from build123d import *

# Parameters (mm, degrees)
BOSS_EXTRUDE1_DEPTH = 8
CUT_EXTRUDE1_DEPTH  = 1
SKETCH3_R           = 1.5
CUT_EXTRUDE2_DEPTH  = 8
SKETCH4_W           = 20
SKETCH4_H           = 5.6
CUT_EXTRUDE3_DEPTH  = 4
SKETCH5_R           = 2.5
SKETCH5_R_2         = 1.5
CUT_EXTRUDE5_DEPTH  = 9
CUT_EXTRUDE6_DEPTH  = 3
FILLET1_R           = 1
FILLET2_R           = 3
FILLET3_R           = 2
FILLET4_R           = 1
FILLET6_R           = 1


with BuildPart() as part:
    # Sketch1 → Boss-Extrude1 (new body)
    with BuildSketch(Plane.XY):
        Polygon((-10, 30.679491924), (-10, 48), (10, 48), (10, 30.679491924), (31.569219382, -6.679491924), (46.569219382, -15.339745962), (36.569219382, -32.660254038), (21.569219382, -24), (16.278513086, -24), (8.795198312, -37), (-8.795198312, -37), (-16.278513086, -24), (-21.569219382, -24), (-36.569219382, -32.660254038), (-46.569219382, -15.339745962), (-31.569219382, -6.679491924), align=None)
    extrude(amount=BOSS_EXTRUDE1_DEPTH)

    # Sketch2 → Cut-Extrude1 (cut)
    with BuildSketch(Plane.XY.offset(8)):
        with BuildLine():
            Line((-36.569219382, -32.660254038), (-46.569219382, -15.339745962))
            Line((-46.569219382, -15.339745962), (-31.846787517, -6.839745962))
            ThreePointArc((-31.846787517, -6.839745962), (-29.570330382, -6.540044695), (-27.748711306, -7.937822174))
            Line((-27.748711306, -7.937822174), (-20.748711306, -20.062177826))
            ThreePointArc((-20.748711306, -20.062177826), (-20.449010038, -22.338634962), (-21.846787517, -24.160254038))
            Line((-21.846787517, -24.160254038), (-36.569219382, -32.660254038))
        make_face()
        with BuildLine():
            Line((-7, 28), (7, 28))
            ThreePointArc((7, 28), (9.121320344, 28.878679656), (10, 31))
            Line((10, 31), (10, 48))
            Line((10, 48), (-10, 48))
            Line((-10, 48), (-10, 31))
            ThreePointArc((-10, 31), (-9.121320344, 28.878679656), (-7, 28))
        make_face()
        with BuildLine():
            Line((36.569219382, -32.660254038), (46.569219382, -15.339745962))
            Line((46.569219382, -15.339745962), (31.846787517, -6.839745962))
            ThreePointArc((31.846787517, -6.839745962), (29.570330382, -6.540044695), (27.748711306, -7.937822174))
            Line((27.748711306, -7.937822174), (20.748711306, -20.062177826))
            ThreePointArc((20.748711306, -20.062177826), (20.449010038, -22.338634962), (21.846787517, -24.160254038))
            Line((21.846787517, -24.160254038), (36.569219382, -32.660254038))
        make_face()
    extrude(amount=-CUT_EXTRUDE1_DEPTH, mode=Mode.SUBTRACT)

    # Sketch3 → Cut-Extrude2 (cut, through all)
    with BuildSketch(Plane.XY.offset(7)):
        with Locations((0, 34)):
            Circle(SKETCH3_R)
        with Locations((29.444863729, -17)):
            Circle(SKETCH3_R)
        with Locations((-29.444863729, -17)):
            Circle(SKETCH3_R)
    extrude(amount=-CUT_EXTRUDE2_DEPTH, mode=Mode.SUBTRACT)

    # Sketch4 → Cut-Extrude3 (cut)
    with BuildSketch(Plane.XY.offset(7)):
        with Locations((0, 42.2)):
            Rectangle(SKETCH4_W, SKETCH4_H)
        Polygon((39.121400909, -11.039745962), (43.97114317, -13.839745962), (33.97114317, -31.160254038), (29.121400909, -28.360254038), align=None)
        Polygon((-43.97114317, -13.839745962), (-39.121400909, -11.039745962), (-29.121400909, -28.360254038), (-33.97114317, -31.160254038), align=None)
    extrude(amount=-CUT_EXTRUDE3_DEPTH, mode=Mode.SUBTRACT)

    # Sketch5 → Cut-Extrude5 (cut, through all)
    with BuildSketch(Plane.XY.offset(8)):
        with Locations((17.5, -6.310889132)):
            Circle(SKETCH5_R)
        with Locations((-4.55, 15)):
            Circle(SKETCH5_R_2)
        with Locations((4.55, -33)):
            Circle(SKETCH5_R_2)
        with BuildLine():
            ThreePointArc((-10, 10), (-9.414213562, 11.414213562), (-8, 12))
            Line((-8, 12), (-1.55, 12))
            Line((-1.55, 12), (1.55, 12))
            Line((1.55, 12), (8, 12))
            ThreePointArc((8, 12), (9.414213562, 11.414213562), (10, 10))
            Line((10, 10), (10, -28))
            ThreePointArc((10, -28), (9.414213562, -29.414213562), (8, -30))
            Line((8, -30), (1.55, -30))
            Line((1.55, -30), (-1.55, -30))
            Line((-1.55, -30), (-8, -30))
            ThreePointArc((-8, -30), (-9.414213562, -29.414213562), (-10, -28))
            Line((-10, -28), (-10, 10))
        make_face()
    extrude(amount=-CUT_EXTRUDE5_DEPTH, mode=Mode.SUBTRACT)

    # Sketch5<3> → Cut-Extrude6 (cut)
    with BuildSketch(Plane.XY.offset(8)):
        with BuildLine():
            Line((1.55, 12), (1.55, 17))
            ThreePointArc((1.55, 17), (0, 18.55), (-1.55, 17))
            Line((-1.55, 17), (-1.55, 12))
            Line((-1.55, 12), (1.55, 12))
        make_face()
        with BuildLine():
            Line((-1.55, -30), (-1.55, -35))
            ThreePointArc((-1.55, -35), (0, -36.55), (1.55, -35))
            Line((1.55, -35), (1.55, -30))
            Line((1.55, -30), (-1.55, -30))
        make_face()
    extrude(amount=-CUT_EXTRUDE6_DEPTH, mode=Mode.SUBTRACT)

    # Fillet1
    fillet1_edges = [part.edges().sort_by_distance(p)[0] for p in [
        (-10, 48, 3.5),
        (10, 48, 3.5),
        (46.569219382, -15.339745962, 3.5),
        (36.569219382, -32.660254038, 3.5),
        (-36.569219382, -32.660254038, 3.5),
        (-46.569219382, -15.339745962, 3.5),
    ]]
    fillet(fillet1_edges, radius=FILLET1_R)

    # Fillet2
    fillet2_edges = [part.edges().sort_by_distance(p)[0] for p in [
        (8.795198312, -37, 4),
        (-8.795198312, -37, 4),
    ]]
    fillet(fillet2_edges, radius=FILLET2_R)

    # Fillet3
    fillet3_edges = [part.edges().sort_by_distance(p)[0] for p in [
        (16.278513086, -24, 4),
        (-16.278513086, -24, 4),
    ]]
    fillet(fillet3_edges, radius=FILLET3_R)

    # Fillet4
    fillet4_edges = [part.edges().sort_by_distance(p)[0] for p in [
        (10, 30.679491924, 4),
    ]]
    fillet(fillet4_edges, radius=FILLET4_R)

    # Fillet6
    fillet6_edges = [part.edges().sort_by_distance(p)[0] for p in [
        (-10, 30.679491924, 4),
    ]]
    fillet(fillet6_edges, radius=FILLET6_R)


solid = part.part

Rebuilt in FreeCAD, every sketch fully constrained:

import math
import FreeCAD as App
import Part
import Sketcher
from FreeCAD import Vector
Q = App.Units.Quantity


def edges_at(feature, points):
    """Names of the edges that pass closest to the given points."""
    edges = feature.Shape.Edges
    near = lambda p: min(range(len(edges)), key=lambda i: edges[i].distToShape(Part.Vertex(*p))[0])
    return sorted({f"Edge{near(p) + 1}" for p in points})


def add_polygon(sketch, points):
    """Adds a closed chain of lines whose ends are joined by coincident constraints."""
    first, n = sketch.GeometryCount, len(points)
    for a, b in zip(points, points[1:] + points[:1]):
        sketch.addGeometry(Part.LineSegment(App.Vector(*a, 0), App.Vector(*b, 0)), False)
    for i in range(n):
        sketch.addConstraint(Sketcher.Constraint("Coincident", first + i, 2, first + (i + 1) % n, 1))

doc = App.newDocument("Part")
body = doc.addObject("PartDesign::Body", "Body")

sketch1 = doc.addObject("Sketcher::SketchObject", "Sketch")
body.addObject(sketch1)
sketch1.AttachmentSupport = (doc.XY_Plane, [""])
sketch1.MapMode = "FlatFace"
add_polygon(sketch1, [(-10, 48), (-10, 30.679492), (-31.569219, -6.679492), (-46.569219, -15.339746), (-36.569219, -32.660254), (-21.569219, -24), (-16.278513, -24), (-8.795198, -37), (8.795198, -37), (16.278513, -24), (21.569219, -24), (36.569219, -32.660254), (46.569219, -15.339746), (31.569219, -6.679492), (10, 30.679492), (10, 48)])
sketch1.addConstraint([
    Sketcher.Constraint("Vertical", 0),
    Sketcher.Constraint("Horizontal", 5),
    Sketcher.Constraint("Horizontal", 7),
    Sketcher.Constraint("Horizontal", 9),
    Sketcher.Constraint("Vertical", 14),
    Sketcher.Constraint("Horizontal", 15),
    Sketcher.Constraint("Symmetric", 5, 2, 8, 2, -2),
    Sketcher.Constraint("Symmetric", 3, 2, 10, 2, -2),
    Sketcher.Constraint("Symmetric", 2, 2, 11, 2, -2),
    Sketcher.Constraint("Symmetric", 1, 2, 12, 2, -2),
    Sketcher.Constraint("Symmetric", 0, 2, 13, 2, -2),
    Sketcher.Constraint("Perpendicular", 2, 3),
    Sketcher.Constraint("Perpendicular", 3, 4),
    Sketcher.Constraint("Perpendicular", 1, 10),
    Sketcher.Constraint("Perpendicular", 10, 11),
    Sketcher.Constraint("Equal", 2, 4),
    Sketcher.Constraint("Equal", 6, 8),
    Sketcher.Constraint("DistanceX", 15, 2, 15, 1, Q("20 mm")),
    Sketcher.Constraint("Angle", 1, Q("-120 deg")),
    Sketcher.Constraint("Distance", 3, Q("20 mm")),
    Sketcher.Constraint("Distance", 6, Q("15 mm")),
    Sketcher.Constraint("DistanceY", 4, 2, -1, 1, Q("24 mm")),
    Sketcher.Constraint("DistanceY", 6, 2, -1, 1, Q("37 mm")),
    Sketcher.Constraint("DistanceY", -1, 1, 14, 2, Q("48 mm")),
    Sketcher.Constraint("DistanceX", 2, 2, 1, 2, Q("15 mm")),
    Sketcher.Constraint("DistanceY", 0, 2, 0, 1, Q("17.320508 mm")),
    Sketcher.Constraint("DistanceX", 6, 2, -1, 1, Q("8.795198 mm")),
])
pad1 = doc.addObject("PartDesign::Pad", "Pad")
body.addObject(pad1)
pad1.Profile = sketch1
pad1.Length = 8

sketch2 = doc.addObject("Sketcher::SketchObject", "Sketch001")
body.addObject(sketch2)
sketch2.AttachmentSupport = (doc.XY_Plane, [""])
sketch2.MapMode = "FlatFace"
sketch2.AttachmentOffset = App.Placement(Vector(0, 0, 8), App.Rotation())
sketch2.addGeometry([
    Part.LineSegment(Vector(-46.569219, -15.339746, 0), Vector(-36.569219, -32.660254, 0)),
    Part.LineSegment(Vector(-36.569219, -32.660254, 0), Vector(-21.846788, -24.160254, 0)),
    Part.ArcOfCircle(Part.Circle(Vector(-23.346788, -21.562178, 0), Vector(0, 0, 1), 3), math.radians(-60), math.radians(30)),
    Part.LineSegment(Vector(-20.748711, -20.062178, 0), Vector(-27.748711, -7.937822, 0)),
    Part.ArcOfCircle(Part.Circle(Vector(-30.346788, -9.437822, 0), Vector(0, 0, 1), 3), math.radians(30), math.radians(120)),
    Part.LineSegment(Vector(-31.846788, -6.839746, 0), Vector(-46.569219, -15.339746, 0)),
    Part.LineSegment(Vector(-7, 28, 0), Vector(7, 28, 0)),
    Part.ArcOfCircle(Part.Circle(Vector(7, 31, 0), Vector(0, 0, 1), 3), math.radians(-90), math.radians(0)),
    Part.LineSegment(Vector(10, 31, 0), Vector(10, 48, 0)),
    Part.LineSegment(Vector(10, 48, 0), Vector(-10, 48, 0)),
    Part.LineSegment(Vector(-10, 48, 0), Vector(-10, 31, 0)),
    Part.ArcOfCircle(Part.Circle(Vector(-7, 31, 0), Vector(0, 0, 1), 3), math.radians(180), math.radians(270)),
    Part.LineSegment(Vector(36.569219, -32.660254, 0), Vector(46.569219, -15.339746, 0)),
    Part.LineSegment(Vector(46.569219, -15.339746, 0), Vector(31.846788, -6.839746, 0)),
    Part.ArcOfCircle(Part.Circle(Vector(30.346788, -9.437822, 0), Vector(0, 0, 1), 3), math.radians(60), math.radians(150)),
    Part.LineSegment(Vector(27.748711, -7.937822, 0), Vector(20.748711, -20.062178, 0)),
    Part.ArcOfCircle(Part.Circle(Vector(23.346788, -21.562178, 0), Vector(0, 0, 1), 3), math.radians(150), math.radians(240)),
    Part.LineSegment(Vector(21.846788, -24.160254, 0), Vector(36.569219, -32.660254, 0)),
], False)
sketch2.addConstraint([
    Sketcher.Constraint("Coincident", 0, 2, 1, 1),
    Sketcher.Constraint("Tangent", 1, 2, 2, 1),
    Sketcher.Constraint("Tangent", 2, 2, 3, 1),
    Sketcher.Constraint("Tangent", 3, 2, 4, 1),
    Sketcher.Constraint("Tangent", 4, 2, 5, 1),
    Sketcher.Constraint("Coincident", 5, 2, 0, 1),
    Sketcher.Constraint("Tangent", 6, 2, 7, 1),
    Sketcher.Constraint("Tangent", 7, 2, 8, 1),
    Sketcher.Constraint("Coincident", 8, 2, 9, 1),
    Sketcher.Constraint("Coincident", 9, 2, 10, 1),
    Sketcher.Constraint("Tangent", 10, 2, 11, 1),
    Sketcher.Constraint("Tangent", 11, 2, 6, 1),
    Sketcher.Constraint("Coincident", 12, 2, 13, 1),
    Sketcher.Constraint("Tangent", 13, 2, 14, 1),
    Sketcher.Constraint("Tangent", 14, 2, 15, 1),
    Sketcher.Constraint("Tangent", 15, 2, 16, 1),
    Sketcher.Constraint("Tangent", 16, 2, 17, 1),
    Sketcher.Constraint("Coincident", 17, 2, 12, 1),
    Sketcher.Constraint("Horizontal", 6),
    Sketcher.Constraint("Vertical", 8),
    Sketcher.Constraint("Horizontal", 9),
    Sketcher.Constraint("Vertical", 10),
    Sketcher.Constraint("Equal", 2, 4),
    Sketcher.Constraint("Equal", 4, 7),
    Sketcher.Constraint("Equal", 7, 11),
    Sketcher.Constraint("Equal", 11, 14),
    Sketcher.Constraint("Equal", 14, 16),
    Sketcher.Constraint("Symmetric", 4, 3, 14, 3, -2),
    Sketcher.Constraint("Symmetric", 2, 3, 16, 3, -2),
    Sketcher.Constraint("Symmetric", 5, 2, 12, 2, -2),
    Sketcher.Constraint("Symmetric", 0, 2, 17, 2, -2),
    Sketcher.Constraint("Perpendicular", 0, 1),
    Sketcher.Constraint("Perpendicular", 1, 3),
    Sketcher.Constraint("Perpendicular", 3, 5),
    Sketcher.Constraint("Radius", 2, Q("3 mm")),
    Sketcher.Constraint("DistanceX", 6, 1, 6, 2, Q("14 mm")),
    Sketcher.Constraint("DistanceY", 8, 1, 8, 2, Q("17 mm")),
    Sketcher.Constraint("Angle", 0, Q("-60 deg")),
    Sketcher.Constraint("Distance", 0, Q("20 mm")),
    Sketcher.Constraint("Distance", 1, Q("17 mm")),
    Sketcher.Constraint("DistanceX", -1, 1, 7, 3, Q("7 mm")),
    Sketcher.Constraint("DistanceY", -1, 1, 7, 3, Q("31 mm")),
    Sketcher.Constraint("DistanceX", 2, 2, 16, 3, Q("44.095499 mm")),
    Sketcher.Constraint("DistanceY", 2, 3, -1, 1, Q("21.562178 mm")),
])
pocket1 = doc.addObject("PartDesign::Pocket", "Pocket")
body.addObject(pocket1)
pocket1.Profile = sketch2
pocket1.Length = 1

sketch3 = doc.addObject("Sketcher::SketchObject", "Sketch002")
body.addObject(sketch3)
sketch3.AttachmentSupport = (doc.XY_Plane, [""])
sketch3.MapMode = "FlatFace"
sketch3.AttachmentOffset = App.Placement(Vector(0, 0, 7), App.Rotation())
sketch3.addGeometry([
    Part.Circle(Vector(0, 34, 0), Vector(0, 0, 1), 1.5),
    Part.Circle(Vector(29.444864, -17, 0), Vector(0, 0, 1), 1.5),
    Part.Circle(Vector(-29.444864, -17, 0), Vector(0, 0, 1), 1.5),
], False)
sketch3.addConstraint([
    Sketcher.Constraint("Equal", 0, 1),
    Sketcher.Constraint("Equal", 1, 2),
    Sketcher.Constraint("Symmetric", 1, 3, 2, 3, -2),
    Sketcher.Constraint("PointOnObject", 0, 3, -2),
    Sketcher.Constraint("Diameter", 0, Q("3 mm")),
    Sketcher.Constraint("DistanceY", -1, 1, 0, 3, Q("34 mm")),
    Sketcher.Constraint("DistanceY", 1, 3, -1, 1, Q("17 mm")),
    Sketcher.Constraint("DistanceX", -1, 1, 1, 3, Q("29.444864 mm")),
])
pocket2 = doc.addObject("PartDesign::Pocket", "Pocket001")
body.addObject(pocket2)
pocket2.Profile = sketch3
pocket2.Type = "ThroughAll"

sketch4 = doc.addObject("Sketcher::SketchObject", "Sketch003")
body.addObject(sketch4)
sketch4.AttachmentSupport = (doc.XY_Plane, [""])
sketch4.MapMode = "FlatFace"
sketch4.AttachmentOffset = App.Placement(Vector(0, 0, 7), App.Rotation())
add_polygon(sketch4, [(-10, 45), (-10, 39.4), (10, 39.4), (10, 45)])
add_polygon(sketch4, [(43.971143, -13.839746), (39.121401, -11.039746), (29.121401, -28.360254), (33.971143, -31.160254)])
add_polygon(sketch4, [(-39.121401, -11.039746), (-43.971143, -13.839746), (-33.971143, -31.160254), (-29.121401, -28.360254)])
sketch4.addConstraint([
    Sketcher.Constraint("Vertical", 0),
    Sketcher.Constraint("Horizontal", 1),
    Sketcher.Constraint("Vertical", 2),
    Sketcher.Constraint("Horizontal", 3),
    Sketcher.Constraint("Symmetric", 7, 2, 8, 2, -2),
    Sketcher.Constraint("Symmetric", 6, 2, 9, 2, -2),
    Sketcher.Constraint("Symmetric", 5, 2, 10, 2, -2),
    Sketcher.Constraint("Symmetric", 4, 2, 11, 2, -2),
    Sketcher.Constraint("Perpendicular", 4, 5),
    Sketcher.Constraint("Perpendicular", 5, 6),
    Sketcher.Constraint("Perpendicular", 6, 7),
    Sketcher.Constraint("DistanceX", 1, 1, 1, 2, Q("20 mm")),
    Sketcher.Constraint("Angle", 4, Q("150 deg")),
    Sketcher.Constraint("Distance", 5, Q("20 mm")),
    Sketcher.Constraint("DistanceY", 0, 2, 0, 1, Q("5.6 mm")),
    Sketcher.Constraint("DistanceX", 0, 2, -1, 1, Q("10 mm")),
    Sketcher.Constraint("DistanceY", -1, 1, 2, 2, Q("45 mm")),
    Sketcher.Constraint("Distance", 4, Q("5.6 mm")),
    Sketcher.Constraint("DistanceX", -1, 1, 4, 2, Q("39.121401 mm")),
    Sketcher.Constraint("DistanceY", 4, 2, -1, 1, Q("11.039746 mm")),
])
pocket3 = doc.addObject("PartDesign::Pocket", "Pocket002")
body.addObject(pocket3)
pocket3.Profile = sketch4
pocket3.Length = 4

sketch5 = doc.addObject("Sketcher::SketchObject", "Sketch004")
body.addObject(sketch5)
sketch5.AttachmentSupport = (doc.XY_Plane, [""])
sketch5.MapMode = "FlatFace"
sketch5.AttachmentOffset = App.Placement(Vector(0, 0, 8), App.Rotation())
sketch5.addGeometry([
    Part.Circle(Vector(17.5, -6.310889, 0), Vector(0, 0, 1), 2.5),
    Part.Circle(Vector(-4.55, 15, 0), Vector(0, 0, 1), 1.5),
    Part.Circle(Vector(4.55, -33, 0), Vector(0, 0, 1), 1.5),
    Part.ArcOfCircle(Part.Circle(Vector(-8, 10, 0), Vector(0, 0, 1), 2), math.radians(90), math.radians(180)),
    Part.LineSegment(Vector(-10, 10, 0), Vector(-10, -28, 0)),
    Part.ArcOfCircle(Part.Circle(Vector(-8, -28, 0), Vector(0, 0, 1), 2), math.radians(-180), math.radians(-90)),
    Part.LineSegment(Vector(-8, -30, 0), Vector(8, -30, 0)),
    Part.ArcOfCircle(Part.Circle(Vector(8, -28, 0), Vector(0, 0, 1), 2), math.radians(-90), math.radians(0)),
    Part.LineSegment(Vector(10, -28, 0), Vector(10, 10, 0)),
    Part.ArcOfCircle(Part.Circle(Vector(8, 10, 0), Vector(0, 0, 1), 2), math.radians(0), math.radians(90)),
    Part.LineSegment(Vector(8, 12, 0), Vector(-8, 12, 0)),
], False)
sketch5.addConstraint([
    Sketcher.Constraint("Tangent", 3, 2, 4, 1),
    Sketcher.Constraint("Tangent", 4, 2, 5, 1),
    Sketcher.Constraint("Tangent", 5, 2, 6, 1),
    Sketcher.Constraint("Tangent", 6, 2, 7, 1),
    Sketcher.Constraint("Tangent", 7, 2, 8, 1),
    Sketcher.Constraint("Tangent", 8, 2, 9, 1),
    Sketcher.Constraint("Tangent", 9, 2, 10, 1),
    Sketcher.Constraint("Tangent", 10, 2, 3, 1),
    Sketcher.Constraint("Vertical", 4),
    Sketcher.Constraint("Horizontal", 6),
    Sketcher.Constraint("Vertical", 8),
    Sketcher.Constraint("Horizontal", 10),
    Sketcher.Constraint("Equal", 1, 2),
    Sketcher.Constraint("Equal", 3, 5),
    Sketcher.Constraint("Equal", 5, 7),
    Sketcher.Constraint("Equal", 7, 9),
    Sketcher.Constraint("Diameter", 0, Q("5 mm")),
    Sketcher.Constraint("Diameter", 1, Q("3 mm")),
    Sketcher.Constraint("Radius", 3, Q("2 mm")),
    Sketcher.Constraint("DistanceX", 6, 1, 6, 2, Q("16 mm")),
    Sketcher.Constraint("DistanceY", 4, 2, 4, 1, Q("38 mm")),
    Sketcher.Constraint("DistanceY", -1, 1, 1, 3, Q("15 mm")),
    Sketcher.Constraint("DistanceY", 2, 3, -1, 1, Q("33 mm")),
    Sketcher.Constraint("DistanceX", 3, 3, -1, 1, Q("8 mm")),
    Sketcher.Constraint("DistanceY", -1, 1, 3, 3, Q("10 mm")),
    Sketcher.Constraint("DistanceX", -1, 1, 0, 3, Q("17.5 mm")),
    Sketcher.Constraint("DistanceX", 1, 3, 2, 3, Q("9.1 mm")),
    Sketcher.Constraint("DistanceX", 1, 3, -1, 1, Q("4.55 mm")),
    Sketcher.Constraint("DistanceY", 0, 3, -1, 1, Q("6.310889 mm")),
])
pocket4 = doc.addObject("PartDesign::Pocket", "Pocket003")
body.addObject(pocket4)
pocket4.Profile = sketch5
pocket4.Type = "ThroughAll"

sketch6 = doc.addObject("Sketcher::SketchObject", "Sketch005")
body.addObject(sketch6)
sketch6.AttachmentSupport = (doc.XY_Plane, [""])
sketch6.MapMode = "FlatFace"
sketch6.AttachmentOffset = App.Placement(Vector(0, 0, 8), App.Rotation())
sketch6.addGeometry([
    Part.LineSegment(Vector(1.55, 12, 0), Vector(1.55, 17, 0)),
    Part.ArcOfCircle(Part.Circle(Vector(0, 17, 0), Vector(0, 0, 1), 1.55), math.radians(0), math.radians(180)),
    Part.LineSegment(Vector(-1.55, 17, 0), Vector(-1.55, 12, 0)),
    Part.LineSegment(Vector(-1.55, 12, 0), Vector(1.55, 12, 0)),
    Part.LineSegment(Vector(-1.55, -30, 0), Vector(-1.55, -35, 0)),
    Part.ArcOfCircle(Part.Circle(Vector(0, -35, 0), Vector(0, 0, 1), 1.55), math.radians(180), math.radians(360)),
    Part.LineSegment(Vector(1.55, -35, 0), Vector(1.55, -30, 0)),
    Part.LineSegment(Vector(1.55, -30, 0), Vector(-1.55, -30, 0)),
], False)
sketch6.addConstraint([
    Sketcher.Constraint("Tangent", 0, 2, 1, 1),
    Sketcher.Constraint("Tangent", 1, 2, 2, 1),
    Sketcher.Constraint("Coincident", 2, 2, 3, 1),
    Sketcher.Constraint("Coincident", 3, 2, 0, 1),
    Sketcher.Constraint("Tangent", 4, 2, 5, 1),
    Sketcher.Constraint("Tangent", 5, 2, 6, 1),
    Sketcher.Constraint("Coincident", 6, 2, 7, 1),
    Sketcher.Constraint("Coincident", 7, 2, 4, 1),
    Sketcher.Constraint("Vertical", 0),
    Sketcher.Constraint("Vertical", 2),
    Sketcher.Constraint("Horizontal", 3),
    Sketcher.Constraint("Vertical", 4),
    Sketcher.Constraint("Vertical", 6),
    Sketcher.Constraint("Horizontal", 7),
    Sketcher.Constraint("Equal", 1, 5),
    Sketcher.Constraint("PointOnObject", 1, 3, -2),
    Sketcher.Constraint("PointOnObject", 5, 3, -2),
    Sketcher.Constraint("Equal", 2, 4),
    Sketcher.Constraint("DistanceY", 0, 1, 0, 2, Q("5 mm")),
    Sketcher.Constraint("Radius", 1, Q("1.55 mm")),
    Sketcher.Constraint("DistanceY", -1, 1, 1, 3, Q("17 mm")),
    Sketcher.Constraint("DistanceY", 5, 3, -1, 1, Q("35 mm")),
])
pocket5 = doc.addObject("PartDesign::Pocket", "Pocket004")
body.addObject(pocket5)
pocket5.Profile = sketch6
pocket5.Length = 3
doc.recompute()

fillet = doc.addObject("PartDesign::Fillet", "Fillet")
body.addObject(fillet)
fillet.Base = (pocket5, edges_at(pocket5, [
    (-10, 48, 3.5),
    (10, 48, 3.5),
    (46.569, -15.34, 3.5),
    (36.569, -32.66, 3.5),
    (-36.569, -32.66, 3.5),
    (-46.569, -15.34, 3.5),
]))
fillet.Radius = 1
doc.recompute()

fillet2 = doc.addObject("PartDesign::Fillet", "Fillet001")
body.addObject(fillet2)
fillet2.Base = (fillet, edges_at(fillet, [(8.795, -37, 4), (-8.795, -37, 4)]))
fillet2.Radius = 3
doc.recompute()

fillet3 = doc.addObject("PartDesign::Fillet", "Fillet002")
body.addObject(fillet3)
fillet3.Base = (fillet2, edges_at(fillet2, [(16.279, -24, 4), (-16.279, -24, 4)]))
fillet3.Radius = 2
doc.recompute()

fillet4 = doc.addObject("PartDesign::Fillet", "Fillet003")
body.addObject(fillet4)
fillet4.Base = (fillet3, edges_at(fillet3, [(10, 30.679, 4)]))
fillet4.Radius = 1
doc.recompute()

fillet5 = doc.addObject("PartDesign::Fillet", "Fillet004")
body.addObject(fillet5)
fillet5.Base = (fillet4, edges_at(fillet4, [(-10, 30.679, 4)]))
fillet5.Radius = 1

doc.recompute()
